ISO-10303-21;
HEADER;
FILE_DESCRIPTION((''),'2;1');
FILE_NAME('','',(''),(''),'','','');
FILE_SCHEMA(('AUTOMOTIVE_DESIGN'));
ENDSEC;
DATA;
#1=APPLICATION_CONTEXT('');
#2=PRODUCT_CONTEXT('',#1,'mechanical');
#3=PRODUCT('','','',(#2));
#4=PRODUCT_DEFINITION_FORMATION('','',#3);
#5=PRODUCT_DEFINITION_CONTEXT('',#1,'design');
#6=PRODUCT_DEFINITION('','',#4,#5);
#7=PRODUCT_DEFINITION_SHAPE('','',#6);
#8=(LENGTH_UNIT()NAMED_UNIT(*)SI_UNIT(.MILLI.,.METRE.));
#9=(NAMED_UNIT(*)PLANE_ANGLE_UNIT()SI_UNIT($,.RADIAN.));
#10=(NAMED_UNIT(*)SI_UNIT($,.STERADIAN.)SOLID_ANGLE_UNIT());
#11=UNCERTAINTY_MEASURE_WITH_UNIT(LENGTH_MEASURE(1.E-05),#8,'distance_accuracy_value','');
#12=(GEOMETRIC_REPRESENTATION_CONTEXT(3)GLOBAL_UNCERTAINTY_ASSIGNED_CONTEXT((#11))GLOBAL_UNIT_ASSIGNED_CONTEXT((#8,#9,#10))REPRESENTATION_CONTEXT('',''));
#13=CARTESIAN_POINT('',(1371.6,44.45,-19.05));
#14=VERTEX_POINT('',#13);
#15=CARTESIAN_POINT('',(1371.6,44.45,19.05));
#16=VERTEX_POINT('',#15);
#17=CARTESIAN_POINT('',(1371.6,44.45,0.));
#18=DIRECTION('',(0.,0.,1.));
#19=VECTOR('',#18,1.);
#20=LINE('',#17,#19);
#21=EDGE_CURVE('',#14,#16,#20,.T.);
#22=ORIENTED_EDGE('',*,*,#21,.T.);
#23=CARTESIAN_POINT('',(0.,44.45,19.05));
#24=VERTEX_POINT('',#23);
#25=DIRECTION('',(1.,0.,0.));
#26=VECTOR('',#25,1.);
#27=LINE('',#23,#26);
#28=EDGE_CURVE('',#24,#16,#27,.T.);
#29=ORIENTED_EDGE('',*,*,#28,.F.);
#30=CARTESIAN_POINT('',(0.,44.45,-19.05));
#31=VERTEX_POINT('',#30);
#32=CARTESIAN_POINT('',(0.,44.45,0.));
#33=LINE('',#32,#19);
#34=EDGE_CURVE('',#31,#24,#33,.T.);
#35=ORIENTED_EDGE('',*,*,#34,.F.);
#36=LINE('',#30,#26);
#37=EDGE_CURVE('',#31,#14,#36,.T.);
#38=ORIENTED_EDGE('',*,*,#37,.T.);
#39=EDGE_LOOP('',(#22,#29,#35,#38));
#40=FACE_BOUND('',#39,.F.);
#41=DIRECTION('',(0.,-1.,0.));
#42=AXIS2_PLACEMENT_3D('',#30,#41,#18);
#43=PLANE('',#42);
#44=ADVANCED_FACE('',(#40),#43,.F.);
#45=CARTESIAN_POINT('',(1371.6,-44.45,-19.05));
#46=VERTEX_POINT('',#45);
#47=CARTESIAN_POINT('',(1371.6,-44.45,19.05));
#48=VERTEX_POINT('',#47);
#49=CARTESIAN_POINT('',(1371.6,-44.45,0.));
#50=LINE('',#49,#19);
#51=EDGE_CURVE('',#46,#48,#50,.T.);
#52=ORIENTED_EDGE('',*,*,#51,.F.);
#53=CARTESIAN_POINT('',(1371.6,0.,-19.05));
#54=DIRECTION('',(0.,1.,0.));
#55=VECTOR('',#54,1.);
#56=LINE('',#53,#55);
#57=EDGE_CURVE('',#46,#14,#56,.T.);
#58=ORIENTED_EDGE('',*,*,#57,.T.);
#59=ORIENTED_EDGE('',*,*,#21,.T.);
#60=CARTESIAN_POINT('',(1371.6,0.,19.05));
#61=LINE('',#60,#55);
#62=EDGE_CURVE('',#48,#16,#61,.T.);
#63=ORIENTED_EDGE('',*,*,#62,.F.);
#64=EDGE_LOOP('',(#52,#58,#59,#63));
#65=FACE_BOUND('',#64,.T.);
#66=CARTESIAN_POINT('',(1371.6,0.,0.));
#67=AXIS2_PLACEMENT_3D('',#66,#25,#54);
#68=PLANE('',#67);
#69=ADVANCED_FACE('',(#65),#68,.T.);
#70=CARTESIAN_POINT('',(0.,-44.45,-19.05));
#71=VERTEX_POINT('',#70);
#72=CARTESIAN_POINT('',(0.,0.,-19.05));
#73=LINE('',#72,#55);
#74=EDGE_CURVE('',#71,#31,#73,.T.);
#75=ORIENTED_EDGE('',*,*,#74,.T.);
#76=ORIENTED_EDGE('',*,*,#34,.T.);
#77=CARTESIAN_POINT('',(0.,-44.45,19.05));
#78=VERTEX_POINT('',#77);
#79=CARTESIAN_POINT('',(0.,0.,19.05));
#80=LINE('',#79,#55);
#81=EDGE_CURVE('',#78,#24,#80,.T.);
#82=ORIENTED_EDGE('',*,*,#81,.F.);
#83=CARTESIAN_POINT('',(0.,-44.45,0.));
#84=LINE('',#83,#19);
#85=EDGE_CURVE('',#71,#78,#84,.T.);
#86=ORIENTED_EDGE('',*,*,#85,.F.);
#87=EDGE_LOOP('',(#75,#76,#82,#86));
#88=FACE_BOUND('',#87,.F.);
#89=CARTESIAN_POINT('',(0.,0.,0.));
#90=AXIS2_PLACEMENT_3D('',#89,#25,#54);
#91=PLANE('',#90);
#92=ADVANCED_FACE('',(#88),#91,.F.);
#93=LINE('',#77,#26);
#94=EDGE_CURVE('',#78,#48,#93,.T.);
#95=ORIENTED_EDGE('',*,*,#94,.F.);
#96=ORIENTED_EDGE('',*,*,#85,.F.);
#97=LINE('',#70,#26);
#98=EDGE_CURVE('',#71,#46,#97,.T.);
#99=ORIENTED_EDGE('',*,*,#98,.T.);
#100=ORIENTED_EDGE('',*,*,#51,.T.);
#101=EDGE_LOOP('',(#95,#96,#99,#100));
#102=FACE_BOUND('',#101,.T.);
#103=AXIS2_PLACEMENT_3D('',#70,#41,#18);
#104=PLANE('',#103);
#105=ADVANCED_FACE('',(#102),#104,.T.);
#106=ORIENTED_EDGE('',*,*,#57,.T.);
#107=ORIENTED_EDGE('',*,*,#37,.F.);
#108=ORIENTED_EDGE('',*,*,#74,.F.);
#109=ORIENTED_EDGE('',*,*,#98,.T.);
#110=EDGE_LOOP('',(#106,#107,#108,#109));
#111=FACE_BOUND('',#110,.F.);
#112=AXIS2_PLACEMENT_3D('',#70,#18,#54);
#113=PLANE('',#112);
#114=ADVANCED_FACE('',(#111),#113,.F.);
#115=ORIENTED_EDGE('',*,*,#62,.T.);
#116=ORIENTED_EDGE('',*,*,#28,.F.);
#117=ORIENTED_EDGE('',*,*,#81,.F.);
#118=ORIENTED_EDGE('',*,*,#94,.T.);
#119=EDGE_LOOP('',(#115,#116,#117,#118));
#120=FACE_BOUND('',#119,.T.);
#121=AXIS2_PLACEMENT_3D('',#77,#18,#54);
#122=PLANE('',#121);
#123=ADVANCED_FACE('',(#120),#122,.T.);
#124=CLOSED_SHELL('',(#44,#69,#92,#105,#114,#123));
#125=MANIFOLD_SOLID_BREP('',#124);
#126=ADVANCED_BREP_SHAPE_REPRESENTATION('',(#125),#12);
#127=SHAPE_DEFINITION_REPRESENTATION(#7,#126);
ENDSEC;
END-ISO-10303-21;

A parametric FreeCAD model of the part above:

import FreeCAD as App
import Part
import Sketcher

V = App.Vector
Q = App.Units.Quantity


def add_polygon(sketch, points):
    """Adds a closed chain of lines whose ends are joined by coincident constraints."""
    first, n = sketch.GeometryCount, len(points)
    for a, b in zip(points, points[1:] + points[:1]):
        sketch.addGeometry(Part.LineSegment(App.Vector(*a, 0), App.Vector(*b, 0)), False)
    for i in range(n):
        sketch.addConstraint(Sketcher.Constraint("Coincident", first + i, 2, first + (i + 1) % n, 1))

doc = App.newDocument("Part")
body = doc.addObject("PartDesign::Body", "Body")

sketch1 = body.newObject("Sketcher::SketchObject", "Sketch")
sketch1.AttachmentSupport = (doc.getObject("YZ_Plane"), [""])
sketch1.MapMode = "FlatFace"
add_polygon(sketch1, [(-44.45, 19.05), (-44.45, -19.05), (44.45, -19.05), (44.45, 19.05)])
sketch1.addConstraint(Sketcher.Constraint("Vertical", 0))
sketch1.addConstraint(Sketcher.Constraint("Horizontal", 1))
sketch1.addConstraint(Sketcher.Constraint("Vertical", 2))
sketch1.addConstraint(Sketcher.Constraint("Horizontal", 3))
sketch1.addConstraint(Sketcher.Constraint("Symmetric", 0, 2, 2, 2, -1, 1))
sketch1.addConstraint(Sketcher.Constraint("DistanceX", 1, 1, 1, 2, Q("3.5 in")))
sketch1.addConstraint(Sketcher.Constraint("DistanceY", 0, 2, 0, 1, Q("1.5 in")))
pad1 = body.newObject("PartDesign::Pad", "Pad")
pad1.Profile = sketch1
pad1.Length = Q("54 in")

doc.recompute()
